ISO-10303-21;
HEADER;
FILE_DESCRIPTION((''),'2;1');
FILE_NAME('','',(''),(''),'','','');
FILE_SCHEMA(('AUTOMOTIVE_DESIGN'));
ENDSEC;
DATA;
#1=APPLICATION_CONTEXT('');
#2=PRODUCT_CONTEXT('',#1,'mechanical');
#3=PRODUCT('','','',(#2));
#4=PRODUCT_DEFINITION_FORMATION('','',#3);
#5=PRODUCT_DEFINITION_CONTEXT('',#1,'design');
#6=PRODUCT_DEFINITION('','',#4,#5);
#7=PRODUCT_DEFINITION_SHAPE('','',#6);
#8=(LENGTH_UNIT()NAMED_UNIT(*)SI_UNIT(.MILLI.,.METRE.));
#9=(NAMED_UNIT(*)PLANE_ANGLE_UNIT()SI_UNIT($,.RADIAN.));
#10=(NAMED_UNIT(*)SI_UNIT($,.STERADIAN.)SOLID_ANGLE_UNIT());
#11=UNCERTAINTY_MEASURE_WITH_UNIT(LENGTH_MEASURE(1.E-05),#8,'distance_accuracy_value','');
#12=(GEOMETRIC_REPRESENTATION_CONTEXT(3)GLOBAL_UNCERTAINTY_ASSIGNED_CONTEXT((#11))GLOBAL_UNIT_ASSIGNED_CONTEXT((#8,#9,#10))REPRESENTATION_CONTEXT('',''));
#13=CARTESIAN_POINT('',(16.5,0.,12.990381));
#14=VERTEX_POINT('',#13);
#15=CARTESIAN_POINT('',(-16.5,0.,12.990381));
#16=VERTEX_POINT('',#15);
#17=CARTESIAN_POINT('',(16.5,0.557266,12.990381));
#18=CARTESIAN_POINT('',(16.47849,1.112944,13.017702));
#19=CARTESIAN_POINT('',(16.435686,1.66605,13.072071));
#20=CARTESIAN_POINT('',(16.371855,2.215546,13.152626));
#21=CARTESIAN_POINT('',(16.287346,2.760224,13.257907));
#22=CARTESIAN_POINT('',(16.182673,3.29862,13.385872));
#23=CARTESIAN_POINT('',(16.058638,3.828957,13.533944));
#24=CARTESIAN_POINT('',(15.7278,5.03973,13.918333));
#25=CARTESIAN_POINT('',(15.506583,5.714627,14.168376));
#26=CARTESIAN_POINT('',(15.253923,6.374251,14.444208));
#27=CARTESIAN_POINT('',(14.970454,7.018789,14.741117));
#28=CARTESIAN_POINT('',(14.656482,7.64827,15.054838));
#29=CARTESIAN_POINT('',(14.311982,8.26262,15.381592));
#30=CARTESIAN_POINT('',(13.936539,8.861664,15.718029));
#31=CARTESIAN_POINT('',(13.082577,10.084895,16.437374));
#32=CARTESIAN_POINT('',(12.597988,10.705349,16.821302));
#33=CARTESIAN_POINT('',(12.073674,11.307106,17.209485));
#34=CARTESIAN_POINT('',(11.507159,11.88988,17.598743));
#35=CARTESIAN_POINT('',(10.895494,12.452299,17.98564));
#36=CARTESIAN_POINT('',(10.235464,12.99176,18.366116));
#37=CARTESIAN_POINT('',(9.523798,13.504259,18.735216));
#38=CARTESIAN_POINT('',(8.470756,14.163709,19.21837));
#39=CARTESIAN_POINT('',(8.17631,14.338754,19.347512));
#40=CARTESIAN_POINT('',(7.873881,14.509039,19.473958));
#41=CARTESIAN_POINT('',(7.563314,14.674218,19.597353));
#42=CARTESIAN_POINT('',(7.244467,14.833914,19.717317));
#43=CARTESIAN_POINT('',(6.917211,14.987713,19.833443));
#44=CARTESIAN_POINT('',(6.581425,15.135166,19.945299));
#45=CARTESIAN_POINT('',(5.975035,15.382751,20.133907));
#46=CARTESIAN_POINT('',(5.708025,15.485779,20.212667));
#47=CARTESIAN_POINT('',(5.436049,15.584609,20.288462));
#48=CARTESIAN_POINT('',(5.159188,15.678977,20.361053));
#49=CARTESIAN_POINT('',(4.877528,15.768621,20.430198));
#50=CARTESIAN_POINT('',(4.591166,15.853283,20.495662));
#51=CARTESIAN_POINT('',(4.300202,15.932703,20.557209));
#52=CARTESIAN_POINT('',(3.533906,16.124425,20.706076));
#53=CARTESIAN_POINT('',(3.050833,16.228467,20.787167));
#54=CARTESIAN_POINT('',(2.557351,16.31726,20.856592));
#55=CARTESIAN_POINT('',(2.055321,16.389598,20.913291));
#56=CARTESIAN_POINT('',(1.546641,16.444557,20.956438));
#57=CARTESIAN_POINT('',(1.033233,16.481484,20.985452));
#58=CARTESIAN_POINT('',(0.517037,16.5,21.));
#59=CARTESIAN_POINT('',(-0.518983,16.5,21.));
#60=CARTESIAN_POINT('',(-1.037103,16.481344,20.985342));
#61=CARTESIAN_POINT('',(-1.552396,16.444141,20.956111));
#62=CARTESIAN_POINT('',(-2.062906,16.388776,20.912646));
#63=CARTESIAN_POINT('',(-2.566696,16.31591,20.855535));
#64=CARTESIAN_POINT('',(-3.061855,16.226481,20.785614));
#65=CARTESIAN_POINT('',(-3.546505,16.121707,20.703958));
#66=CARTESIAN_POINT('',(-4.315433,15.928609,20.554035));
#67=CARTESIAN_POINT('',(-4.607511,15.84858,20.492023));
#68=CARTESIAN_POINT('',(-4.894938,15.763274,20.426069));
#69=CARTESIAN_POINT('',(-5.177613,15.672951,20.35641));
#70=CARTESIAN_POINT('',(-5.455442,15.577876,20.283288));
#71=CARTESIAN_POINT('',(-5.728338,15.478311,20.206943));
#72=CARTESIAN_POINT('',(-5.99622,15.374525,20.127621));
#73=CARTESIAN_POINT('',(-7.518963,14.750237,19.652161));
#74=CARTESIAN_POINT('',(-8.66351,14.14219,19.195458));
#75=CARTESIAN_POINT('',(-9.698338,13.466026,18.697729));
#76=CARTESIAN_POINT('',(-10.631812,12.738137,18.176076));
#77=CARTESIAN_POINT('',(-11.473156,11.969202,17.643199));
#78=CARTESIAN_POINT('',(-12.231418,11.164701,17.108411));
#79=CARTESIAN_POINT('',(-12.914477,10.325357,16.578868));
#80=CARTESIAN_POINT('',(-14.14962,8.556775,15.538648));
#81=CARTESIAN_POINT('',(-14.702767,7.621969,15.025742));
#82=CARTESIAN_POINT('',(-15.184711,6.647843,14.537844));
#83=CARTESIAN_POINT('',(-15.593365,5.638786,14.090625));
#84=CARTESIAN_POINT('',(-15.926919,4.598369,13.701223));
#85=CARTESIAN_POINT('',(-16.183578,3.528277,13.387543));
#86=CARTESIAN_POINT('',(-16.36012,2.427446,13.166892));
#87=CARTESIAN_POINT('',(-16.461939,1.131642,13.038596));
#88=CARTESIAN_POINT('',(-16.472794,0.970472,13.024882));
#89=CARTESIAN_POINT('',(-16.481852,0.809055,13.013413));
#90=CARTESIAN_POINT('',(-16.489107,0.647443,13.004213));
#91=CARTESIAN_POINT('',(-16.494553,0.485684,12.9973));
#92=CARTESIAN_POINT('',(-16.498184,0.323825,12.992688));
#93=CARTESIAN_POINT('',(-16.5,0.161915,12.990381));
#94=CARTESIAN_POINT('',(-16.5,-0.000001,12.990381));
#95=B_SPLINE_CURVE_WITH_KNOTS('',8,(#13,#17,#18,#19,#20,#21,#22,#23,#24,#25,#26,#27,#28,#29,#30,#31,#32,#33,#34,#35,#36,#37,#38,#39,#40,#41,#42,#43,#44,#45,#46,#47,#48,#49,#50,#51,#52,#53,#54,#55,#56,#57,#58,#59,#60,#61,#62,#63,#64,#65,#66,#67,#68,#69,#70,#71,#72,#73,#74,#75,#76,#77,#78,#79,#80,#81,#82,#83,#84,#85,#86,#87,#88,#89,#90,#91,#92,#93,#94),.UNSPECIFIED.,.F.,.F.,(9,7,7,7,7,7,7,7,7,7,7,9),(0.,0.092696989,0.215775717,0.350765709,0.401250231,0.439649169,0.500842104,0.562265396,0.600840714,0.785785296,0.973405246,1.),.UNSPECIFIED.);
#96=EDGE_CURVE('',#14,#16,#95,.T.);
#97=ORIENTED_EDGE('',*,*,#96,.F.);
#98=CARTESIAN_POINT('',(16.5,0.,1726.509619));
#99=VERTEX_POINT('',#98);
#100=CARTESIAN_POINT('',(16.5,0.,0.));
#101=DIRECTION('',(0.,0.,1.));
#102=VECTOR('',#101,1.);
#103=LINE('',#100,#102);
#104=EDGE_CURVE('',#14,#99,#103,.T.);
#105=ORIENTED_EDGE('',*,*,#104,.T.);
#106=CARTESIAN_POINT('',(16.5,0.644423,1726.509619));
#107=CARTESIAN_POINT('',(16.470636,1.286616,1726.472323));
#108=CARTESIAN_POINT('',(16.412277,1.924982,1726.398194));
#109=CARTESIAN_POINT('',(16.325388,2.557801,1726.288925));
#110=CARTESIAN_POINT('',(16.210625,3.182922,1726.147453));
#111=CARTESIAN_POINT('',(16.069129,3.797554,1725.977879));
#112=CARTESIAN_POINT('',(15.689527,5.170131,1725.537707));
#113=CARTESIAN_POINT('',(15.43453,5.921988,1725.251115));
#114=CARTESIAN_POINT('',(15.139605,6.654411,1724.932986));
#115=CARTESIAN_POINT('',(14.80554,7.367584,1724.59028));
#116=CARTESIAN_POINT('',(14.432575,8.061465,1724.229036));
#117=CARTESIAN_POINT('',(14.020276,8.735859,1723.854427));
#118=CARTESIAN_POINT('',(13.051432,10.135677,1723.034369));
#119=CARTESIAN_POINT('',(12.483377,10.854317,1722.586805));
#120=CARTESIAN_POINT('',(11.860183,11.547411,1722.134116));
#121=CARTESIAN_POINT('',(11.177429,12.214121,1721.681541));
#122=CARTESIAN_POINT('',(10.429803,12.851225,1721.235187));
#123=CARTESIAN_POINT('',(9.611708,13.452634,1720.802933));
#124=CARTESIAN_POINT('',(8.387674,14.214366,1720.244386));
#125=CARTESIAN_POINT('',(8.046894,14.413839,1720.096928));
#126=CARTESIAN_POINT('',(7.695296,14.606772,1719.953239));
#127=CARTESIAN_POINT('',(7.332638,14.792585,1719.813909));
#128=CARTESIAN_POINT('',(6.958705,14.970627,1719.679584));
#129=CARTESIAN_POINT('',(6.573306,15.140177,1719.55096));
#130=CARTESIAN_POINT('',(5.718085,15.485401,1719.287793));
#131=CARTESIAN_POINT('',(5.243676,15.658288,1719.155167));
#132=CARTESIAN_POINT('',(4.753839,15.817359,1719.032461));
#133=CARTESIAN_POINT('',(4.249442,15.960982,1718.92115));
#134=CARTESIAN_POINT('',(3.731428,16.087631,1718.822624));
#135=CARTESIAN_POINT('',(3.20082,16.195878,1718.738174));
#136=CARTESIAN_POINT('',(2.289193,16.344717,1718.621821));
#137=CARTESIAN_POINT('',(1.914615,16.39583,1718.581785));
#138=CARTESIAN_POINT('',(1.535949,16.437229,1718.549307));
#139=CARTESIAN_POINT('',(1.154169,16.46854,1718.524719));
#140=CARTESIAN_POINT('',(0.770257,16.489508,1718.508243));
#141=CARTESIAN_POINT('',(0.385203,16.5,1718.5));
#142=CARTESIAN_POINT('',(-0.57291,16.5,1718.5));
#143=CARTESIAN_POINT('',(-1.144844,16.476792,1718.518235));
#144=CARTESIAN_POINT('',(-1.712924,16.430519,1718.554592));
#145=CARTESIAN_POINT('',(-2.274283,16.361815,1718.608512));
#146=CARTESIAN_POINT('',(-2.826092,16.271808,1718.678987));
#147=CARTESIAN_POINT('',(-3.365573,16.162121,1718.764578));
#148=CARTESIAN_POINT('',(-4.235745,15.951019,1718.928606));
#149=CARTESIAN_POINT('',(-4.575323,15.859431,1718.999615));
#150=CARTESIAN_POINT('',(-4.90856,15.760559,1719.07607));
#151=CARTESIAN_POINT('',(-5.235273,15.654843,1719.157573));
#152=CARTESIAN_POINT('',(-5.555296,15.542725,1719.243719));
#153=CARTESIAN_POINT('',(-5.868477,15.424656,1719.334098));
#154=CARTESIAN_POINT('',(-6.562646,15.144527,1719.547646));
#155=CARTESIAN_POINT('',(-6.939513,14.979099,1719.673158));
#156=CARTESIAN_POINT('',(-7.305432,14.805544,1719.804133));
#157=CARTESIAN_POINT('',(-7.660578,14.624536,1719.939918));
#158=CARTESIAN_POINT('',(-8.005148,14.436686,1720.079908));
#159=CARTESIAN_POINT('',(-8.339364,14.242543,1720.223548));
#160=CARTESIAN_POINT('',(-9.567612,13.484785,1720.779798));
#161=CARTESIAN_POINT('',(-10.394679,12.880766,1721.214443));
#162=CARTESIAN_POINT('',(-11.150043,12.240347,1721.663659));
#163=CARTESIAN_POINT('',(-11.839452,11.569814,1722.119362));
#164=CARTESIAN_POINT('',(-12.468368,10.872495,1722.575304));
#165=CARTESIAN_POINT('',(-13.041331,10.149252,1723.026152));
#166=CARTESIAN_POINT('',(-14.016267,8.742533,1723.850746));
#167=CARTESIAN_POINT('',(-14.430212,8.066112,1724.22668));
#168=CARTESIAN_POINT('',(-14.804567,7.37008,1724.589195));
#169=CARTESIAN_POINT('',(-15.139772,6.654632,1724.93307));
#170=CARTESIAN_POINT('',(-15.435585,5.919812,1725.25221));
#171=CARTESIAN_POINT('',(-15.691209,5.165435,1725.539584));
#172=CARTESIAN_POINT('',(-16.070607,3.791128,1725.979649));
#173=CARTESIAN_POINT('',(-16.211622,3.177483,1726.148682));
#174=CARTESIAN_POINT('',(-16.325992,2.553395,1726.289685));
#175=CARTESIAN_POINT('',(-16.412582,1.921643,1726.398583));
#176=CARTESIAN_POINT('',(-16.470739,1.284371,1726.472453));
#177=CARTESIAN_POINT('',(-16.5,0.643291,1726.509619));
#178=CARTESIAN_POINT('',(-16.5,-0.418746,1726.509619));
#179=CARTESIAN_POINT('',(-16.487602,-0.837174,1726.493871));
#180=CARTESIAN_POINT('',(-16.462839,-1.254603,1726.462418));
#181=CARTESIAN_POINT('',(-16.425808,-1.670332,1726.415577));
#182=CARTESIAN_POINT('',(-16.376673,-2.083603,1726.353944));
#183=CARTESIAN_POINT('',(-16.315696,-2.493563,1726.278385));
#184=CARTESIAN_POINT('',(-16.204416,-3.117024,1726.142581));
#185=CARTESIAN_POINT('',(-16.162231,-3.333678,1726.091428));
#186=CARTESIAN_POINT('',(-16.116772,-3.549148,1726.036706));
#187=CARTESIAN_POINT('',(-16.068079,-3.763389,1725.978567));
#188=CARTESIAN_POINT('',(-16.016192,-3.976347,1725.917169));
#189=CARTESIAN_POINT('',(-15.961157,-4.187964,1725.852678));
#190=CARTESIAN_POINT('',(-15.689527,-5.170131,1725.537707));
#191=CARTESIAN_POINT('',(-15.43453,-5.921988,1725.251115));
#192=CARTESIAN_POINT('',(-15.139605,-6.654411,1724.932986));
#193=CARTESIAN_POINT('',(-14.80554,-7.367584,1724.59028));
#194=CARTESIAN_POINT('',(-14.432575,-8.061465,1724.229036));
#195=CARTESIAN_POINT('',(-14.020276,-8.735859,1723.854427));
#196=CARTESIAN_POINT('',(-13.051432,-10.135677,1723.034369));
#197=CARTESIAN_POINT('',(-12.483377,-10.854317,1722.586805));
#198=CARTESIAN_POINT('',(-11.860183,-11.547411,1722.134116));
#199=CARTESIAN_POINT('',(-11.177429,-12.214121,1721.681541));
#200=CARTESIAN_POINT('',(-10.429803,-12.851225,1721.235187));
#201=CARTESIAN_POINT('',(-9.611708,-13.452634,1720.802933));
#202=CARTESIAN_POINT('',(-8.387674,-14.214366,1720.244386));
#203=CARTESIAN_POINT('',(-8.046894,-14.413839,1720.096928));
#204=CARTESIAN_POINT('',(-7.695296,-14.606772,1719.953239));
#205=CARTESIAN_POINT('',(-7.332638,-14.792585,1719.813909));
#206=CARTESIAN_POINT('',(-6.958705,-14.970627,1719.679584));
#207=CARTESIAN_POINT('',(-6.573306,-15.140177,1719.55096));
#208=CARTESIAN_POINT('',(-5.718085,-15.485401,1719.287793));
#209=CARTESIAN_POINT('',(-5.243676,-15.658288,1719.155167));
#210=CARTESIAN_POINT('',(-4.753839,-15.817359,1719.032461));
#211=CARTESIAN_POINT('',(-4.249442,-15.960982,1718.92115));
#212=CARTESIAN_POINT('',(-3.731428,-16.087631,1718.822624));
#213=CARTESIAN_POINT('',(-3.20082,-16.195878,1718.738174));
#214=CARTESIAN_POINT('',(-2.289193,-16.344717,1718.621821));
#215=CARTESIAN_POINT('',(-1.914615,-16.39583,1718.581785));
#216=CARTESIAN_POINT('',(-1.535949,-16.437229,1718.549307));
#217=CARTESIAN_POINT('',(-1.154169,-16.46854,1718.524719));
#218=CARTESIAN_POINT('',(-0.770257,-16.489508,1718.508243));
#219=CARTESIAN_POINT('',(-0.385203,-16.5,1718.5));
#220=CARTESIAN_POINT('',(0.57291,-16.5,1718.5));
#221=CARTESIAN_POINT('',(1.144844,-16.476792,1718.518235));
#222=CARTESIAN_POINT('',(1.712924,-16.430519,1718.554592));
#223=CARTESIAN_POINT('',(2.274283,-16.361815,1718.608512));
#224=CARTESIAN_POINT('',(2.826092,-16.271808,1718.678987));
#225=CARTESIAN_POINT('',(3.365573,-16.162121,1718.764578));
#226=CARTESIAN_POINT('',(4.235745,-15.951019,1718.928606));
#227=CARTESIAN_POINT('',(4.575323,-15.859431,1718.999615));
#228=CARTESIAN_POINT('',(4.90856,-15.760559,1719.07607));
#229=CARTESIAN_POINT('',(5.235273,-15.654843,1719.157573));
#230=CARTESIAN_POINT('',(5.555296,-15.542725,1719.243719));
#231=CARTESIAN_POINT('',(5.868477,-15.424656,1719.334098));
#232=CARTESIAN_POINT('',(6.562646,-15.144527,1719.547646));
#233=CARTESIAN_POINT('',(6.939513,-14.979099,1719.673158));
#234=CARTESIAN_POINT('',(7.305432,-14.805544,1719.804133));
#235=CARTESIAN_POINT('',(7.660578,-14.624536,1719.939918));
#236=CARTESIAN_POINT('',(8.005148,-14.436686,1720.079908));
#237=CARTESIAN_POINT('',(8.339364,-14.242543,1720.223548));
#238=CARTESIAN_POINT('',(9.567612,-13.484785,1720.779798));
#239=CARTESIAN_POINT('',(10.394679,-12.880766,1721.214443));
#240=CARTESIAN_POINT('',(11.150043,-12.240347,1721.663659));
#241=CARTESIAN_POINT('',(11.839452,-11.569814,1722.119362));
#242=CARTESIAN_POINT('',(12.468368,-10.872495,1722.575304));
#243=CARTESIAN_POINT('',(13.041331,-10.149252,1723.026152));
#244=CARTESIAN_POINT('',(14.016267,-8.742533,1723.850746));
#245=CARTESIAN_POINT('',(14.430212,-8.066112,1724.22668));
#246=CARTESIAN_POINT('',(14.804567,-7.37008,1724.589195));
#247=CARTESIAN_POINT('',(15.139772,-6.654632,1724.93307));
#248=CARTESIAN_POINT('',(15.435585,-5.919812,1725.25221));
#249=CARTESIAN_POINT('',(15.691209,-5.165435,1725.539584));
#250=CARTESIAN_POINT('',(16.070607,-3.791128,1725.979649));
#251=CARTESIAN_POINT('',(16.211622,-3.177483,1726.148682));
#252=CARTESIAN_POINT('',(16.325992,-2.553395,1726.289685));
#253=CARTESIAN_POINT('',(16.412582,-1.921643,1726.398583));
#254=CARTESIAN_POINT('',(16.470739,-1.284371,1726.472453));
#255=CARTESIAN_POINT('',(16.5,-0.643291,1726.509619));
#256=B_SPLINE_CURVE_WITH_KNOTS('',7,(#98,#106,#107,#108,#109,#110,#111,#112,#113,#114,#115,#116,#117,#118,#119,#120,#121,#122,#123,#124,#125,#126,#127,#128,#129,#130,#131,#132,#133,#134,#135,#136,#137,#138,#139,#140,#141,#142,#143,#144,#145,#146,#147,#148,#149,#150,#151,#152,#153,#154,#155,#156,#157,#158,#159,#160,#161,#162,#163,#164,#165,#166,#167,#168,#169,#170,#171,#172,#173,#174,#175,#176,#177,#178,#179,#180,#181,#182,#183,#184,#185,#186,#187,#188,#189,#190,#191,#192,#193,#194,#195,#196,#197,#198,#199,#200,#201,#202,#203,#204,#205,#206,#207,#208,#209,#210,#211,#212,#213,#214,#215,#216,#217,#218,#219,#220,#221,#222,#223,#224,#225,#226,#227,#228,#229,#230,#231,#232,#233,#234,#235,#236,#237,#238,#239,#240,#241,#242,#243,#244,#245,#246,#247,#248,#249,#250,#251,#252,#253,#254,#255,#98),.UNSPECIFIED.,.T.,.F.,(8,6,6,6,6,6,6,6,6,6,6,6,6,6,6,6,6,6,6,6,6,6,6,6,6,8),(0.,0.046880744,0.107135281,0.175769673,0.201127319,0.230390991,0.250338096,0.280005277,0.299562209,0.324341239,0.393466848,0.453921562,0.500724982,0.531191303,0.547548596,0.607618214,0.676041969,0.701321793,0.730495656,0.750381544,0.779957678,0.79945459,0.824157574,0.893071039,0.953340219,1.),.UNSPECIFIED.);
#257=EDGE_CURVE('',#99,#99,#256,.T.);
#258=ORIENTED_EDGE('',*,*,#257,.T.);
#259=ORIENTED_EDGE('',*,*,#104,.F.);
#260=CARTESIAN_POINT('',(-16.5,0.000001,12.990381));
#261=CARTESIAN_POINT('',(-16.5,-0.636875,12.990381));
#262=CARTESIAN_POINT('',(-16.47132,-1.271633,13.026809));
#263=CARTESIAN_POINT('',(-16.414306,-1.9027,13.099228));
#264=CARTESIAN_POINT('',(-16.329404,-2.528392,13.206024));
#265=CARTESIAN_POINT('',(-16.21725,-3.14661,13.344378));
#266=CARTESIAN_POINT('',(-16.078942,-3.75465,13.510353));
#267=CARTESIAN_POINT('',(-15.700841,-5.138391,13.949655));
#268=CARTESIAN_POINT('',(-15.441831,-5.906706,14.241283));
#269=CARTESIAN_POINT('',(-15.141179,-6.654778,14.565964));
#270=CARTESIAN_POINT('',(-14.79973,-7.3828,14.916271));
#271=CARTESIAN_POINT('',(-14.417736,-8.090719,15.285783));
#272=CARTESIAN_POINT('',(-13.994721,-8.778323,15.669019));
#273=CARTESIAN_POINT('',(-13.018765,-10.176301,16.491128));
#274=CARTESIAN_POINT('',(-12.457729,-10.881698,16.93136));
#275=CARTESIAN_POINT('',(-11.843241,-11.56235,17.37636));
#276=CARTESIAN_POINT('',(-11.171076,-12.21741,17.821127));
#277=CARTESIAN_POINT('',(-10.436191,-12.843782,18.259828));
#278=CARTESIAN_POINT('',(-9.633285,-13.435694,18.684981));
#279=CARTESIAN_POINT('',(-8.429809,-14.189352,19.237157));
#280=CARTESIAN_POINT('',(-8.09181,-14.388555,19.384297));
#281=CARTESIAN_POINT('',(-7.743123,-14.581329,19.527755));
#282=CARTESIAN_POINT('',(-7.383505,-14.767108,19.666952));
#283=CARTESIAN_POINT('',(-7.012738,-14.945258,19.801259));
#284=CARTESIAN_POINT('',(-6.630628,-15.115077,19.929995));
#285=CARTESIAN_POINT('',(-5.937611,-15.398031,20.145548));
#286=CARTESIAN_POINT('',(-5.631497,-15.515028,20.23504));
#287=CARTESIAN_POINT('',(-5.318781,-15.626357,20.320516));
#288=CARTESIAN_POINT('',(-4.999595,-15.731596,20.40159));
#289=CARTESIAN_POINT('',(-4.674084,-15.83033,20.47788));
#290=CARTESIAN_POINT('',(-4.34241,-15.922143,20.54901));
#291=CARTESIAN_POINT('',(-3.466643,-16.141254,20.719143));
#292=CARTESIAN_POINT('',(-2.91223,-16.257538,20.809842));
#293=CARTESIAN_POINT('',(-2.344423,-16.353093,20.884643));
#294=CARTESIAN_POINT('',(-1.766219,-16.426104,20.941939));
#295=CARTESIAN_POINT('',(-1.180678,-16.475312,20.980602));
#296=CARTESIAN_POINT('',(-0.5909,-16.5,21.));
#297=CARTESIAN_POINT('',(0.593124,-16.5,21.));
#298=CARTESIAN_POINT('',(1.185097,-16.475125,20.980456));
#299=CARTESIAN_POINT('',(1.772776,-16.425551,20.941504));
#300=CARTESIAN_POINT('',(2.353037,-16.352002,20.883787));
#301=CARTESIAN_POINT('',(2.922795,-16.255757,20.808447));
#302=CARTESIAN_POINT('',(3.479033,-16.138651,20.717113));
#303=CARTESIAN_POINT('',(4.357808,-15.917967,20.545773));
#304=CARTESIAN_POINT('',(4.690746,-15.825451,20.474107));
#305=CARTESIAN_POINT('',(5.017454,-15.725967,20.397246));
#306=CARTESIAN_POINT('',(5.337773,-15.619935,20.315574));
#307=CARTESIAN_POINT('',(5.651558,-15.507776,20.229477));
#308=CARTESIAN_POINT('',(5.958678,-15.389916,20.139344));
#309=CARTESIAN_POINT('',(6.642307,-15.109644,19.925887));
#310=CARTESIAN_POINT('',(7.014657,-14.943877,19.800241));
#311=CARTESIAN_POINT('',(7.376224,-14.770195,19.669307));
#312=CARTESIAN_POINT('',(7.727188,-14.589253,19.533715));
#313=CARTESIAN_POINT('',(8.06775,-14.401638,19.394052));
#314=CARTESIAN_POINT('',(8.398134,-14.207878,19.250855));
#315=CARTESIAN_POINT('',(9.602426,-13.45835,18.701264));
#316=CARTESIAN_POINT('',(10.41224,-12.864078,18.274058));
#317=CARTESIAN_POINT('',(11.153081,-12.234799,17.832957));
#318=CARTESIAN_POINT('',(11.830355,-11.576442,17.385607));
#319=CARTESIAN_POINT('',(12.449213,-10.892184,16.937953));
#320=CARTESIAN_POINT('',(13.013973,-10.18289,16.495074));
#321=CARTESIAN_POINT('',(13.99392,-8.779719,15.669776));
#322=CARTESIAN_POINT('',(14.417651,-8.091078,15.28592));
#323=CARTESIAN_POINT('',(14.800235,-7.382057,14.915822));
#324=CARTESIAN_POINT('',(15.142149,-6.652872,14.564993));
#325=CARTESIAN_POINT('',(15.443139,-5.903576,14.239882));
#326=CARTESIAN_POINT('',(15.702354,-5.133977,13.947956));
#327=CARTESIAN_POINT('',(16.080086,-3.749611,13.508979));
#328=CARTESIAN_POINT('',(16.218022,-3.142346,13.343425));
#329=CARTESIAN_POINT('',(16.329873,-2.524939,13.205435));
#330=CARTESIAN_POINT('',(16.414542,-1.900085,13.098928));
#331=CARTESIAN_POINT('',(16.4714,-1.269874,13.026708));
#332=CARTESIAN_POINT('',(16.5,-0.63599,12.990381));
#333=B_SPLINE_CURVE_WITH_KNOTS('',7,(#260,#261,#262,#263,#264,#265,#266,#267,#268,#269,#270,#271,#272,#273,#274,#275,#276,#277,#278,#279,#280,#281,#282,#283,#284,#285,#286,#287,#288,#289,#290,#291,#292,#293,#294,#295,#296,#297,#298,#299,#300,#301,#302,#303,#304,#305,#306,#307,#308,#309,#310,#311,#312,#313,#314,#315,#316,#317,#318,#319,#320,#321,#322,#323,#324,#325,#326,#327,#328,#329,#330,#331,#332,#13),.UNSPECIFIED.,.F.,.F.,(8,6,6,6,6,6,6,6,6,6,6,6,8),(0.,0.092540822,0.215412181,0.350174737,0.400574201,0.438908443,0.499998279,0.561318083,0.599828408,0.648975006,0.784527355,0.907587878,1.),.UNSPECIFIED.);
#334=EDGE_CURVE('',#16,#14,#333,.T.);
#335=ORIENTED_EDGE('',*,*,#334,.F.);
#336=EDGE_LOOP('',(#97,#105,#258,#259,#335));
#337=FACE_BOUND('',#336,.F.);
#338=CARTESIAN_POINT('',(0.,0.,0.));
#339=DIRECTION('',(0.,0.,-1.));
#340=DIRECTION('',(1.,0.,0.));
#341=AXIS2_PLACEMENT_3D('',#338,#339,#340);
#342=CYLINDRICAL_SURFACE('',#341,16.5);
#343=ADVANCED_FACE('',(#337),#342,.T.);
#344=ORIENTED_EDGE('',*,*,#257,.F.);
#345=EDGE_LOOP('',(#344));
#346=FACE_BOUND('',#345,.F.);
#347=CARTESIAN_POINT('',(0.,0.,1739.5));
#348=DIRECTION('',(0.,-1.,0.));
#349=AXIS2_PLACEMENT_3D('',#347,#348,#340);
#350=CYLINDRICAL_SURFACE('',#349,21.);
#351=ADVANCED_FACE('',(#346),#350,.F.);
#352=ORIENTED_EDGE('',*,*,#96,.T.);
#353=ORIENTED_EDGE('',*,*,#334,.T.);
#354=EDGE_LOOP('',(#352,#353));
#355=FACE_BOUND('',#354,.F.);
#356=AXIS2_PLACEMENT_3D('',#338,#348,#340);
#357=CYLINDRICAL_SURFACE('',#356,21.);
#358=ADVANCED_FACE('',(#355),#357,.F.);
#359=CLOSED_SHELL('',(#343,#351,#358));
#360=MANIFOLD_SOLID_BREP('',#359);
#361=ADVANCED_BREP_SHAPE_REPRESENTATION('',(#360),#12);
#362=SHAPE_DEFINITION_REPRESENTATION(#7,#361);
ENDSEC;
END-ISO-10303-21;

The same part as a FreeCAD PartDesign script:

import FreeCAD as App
import Part
import Sketcher
from FreeCAD import Vector

doc = App.newDocument("Part")
body = doc.addObject("PartDesign::Body", "Body")

# Sketch on XY plane
sketch1 = body.newObject("Sketcher::SketchObject", "Sketch")
sketch1.AttachmentSupport = (doc.getObject("XY_Plane"), [""])
sketch1.MapMode = "FlatFace"
sketch1.addGeometry(Part.Circle(Vector(0, 0, 0), Vector(0, 0, 1), 16.5), False)
sketch1.addConstraint([
    Sketcher.Constraint("Coincident", 0, 3, -1, 1),
    Sketcher.Constraint("Diameter", 0, 33.0),
])
pad1 = body.newObject("PartDesign::Pad", "Pad")
pad1.Profile = sketch1
pad1.Length = 1739.5

# Sketch on XZ plane
sketch2 = body.newObject("Sketcher::SketchObject", "Sketch001")
sketch2.AttachmentSupport = (doc.getObject("XZ_Plane"), [""])
sketch2.MapMode = "FlatFace"
sketch2.addGeometry([
    Part.Circle(Vector(0, 0, 0), Vector(0, 0, 1), 21),
    Part.Circle(Vector(0, 1739.5, 0), Vector(0, 0, 1), 21),
], False)
sketch2.addConstraint([
    Sketcher.Constraint("Coincident", 0, 3, -1, 1),
    Sketcher.Constraint("Equal", 0, 1),
    Sketcher.Constraint("PointOnObject", 1, 3, -2),
    Sketcher.Constraint("Diameter", 0, 42.0),
    Sketcher.Constraint("DistanceY", -1, 1, 1, 3, 1739.5),
])
pocket1 = body.newObject("PartDesign::Pocket", "Pocket")
pocket1.Profile = sketch2
pocket1.Length = 100
pocket1.Midplane = True

doc.recompute()
